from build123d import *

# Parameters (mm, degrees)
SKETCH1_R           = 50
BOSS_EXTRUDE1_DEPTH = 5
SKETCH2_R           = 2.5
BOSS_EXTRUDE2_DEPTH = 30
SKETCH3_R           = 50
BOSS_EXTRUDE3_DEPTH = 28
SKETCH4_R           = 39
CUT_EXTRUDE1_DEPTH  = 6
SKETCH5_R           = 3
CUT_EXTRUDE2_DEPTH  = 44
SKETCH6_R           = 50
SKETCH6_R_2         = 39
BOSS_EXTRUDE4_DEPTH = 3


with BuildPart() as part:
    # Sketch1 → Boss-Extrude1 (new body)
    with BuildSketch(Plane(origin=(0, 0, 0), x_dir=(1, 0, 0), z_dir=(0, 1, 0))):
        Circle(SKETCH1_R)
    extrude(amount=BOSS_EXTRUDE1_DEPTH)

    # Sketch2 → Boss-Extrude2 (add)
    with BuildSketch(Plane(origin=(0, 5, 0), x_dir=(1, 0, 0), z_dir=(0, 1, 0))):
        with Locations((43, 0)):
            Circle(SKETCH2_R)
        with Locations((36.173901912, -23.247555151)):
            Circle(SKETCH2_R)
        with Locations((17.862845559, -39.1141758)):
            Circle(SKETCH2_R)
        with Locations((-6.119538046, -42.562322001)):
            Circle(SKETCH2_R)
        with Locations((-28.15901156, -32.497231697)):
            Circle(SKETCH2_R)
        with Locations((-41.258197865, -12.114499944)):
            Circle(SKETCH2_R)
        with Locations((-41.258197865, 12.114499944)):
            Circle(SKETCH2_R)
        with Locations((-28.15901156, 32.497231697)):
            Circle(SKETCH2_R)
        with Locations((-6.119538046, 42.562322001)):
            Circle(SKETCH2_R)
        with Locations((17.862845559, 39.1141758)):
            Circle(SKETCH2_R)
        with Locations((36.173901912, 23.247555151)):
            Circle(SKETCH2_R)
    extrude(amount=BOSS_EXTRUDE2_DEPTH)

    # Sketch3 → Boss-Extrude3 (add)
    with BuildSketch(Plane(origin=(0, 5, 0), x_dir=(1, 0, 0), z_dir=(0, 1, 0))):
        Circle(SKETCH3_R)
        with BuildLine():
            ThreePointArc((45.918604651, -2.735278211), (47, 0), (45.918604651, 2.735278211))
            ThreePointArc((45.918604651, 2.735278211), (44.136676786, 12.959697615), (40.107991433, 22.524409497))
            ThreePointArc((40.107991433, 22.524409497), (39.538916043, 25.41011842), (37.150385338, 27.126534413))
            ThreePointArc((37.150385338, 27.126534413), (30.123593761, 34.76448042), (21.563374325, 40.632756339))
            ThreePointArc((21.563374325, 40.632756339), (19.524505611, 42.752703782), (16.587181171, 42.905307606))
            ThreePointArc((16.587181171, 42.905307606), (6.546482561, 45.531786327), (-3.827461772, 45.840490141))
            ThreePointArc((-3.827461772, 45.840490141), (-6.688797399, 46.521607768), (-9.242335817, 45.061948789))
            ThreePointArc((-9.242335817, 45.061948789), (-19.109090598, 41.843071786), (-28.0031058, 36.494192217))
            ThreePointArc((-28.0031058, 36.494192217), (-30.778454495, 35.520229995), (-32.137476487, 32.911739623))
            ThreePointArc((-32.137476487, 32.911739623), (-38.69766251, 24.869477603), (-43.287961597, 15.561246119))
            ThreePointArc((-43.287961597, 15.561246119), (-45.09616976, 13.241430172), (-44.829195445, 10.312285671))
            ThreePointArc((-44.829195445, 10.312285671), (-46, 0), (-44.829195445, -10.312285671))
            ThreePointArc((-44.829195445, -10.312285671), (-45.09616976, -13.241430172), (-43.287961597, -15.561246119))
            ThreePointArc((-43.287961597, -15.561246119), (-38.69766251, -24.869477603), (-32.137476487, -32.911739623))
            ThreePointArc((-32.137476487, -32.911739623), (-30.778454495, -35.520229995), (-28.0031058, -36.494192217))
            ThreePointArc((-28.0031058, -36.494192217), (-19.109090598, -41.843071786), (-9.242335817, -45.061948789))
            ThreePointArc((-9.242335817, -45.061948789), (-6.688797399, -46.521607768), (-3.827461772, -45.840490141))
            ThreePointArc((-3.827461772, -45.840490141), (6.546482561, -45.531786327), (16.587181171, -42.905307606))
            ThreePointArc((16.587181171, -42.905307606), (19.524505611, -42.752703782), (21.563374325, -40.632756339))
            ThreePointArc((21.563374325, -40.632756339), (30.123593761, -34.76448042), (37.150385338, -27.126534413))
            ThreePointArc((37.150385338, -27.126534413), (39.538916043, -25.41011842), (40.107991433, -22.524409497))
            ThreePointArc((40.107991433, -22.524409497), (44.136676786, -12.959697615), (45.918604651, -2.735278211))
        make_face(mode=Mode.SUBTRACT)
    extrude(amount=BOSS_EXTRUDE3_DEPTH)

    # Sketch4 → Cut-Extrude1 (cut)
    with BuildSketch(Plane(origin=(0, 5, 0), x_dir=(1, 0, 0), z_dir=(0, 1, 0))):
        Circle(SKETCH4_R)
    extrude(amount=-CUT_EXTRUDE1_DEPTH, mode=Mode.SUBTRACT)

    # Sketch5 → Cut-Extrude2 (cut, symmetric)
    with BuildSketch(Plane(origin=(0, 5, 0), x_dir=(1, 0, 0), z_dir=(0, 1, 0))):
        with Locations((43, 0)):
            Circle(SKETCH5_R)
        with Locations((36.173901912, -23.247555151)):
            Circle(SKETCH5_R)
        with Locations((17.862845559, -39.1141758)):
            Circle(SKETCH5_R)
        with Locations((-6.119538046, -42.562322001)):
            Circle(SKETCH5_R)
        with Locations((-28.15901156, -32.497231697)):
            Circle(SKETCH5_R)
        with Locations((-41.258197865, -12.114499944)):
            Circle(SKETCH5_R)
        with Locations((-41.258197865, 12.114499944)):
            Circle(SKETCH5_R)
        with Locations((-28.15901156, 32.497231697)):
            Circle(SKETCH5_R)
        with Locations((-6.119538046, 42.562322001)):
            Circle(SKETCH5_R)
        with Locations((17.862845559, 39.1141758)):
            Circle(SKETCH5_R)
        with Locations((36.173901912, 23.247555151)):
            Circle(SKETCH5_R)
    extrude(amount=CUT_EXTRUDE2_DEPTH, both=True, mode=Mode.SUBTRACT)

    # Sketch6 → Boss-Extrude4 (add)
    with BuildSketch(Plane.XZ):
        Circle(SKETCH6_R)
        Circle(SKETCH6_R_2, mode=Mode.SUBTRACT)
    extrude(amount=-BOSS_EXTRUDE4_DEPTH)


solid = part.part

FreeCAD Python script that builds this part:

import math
import FreeCAD as App
import Part
import Sketcher

doc = App.newDocument("Part")
body = doc.addObject("PartDesign::Body", "Body")

# Sketch on XZ plane
sketch1 = doc.addObject("Sketcher::SketchObject", "Sketch")
body.addObject(sketch1)
sketch1.AttachmentSupport = (doc.XZ_Plane, [""])
sketch1.MapMode = "FlatFace"
sketch1.addGeometry(Part.Circle(App.Vector(0, 0, 0), App.Vector(0, 0, 1), 50), False)
sketch1.addConstraint(Sketcher.Constraint("Coincident", 0, 3, -1, 1))
sketch1.addConstraint(Sketcher.Constraint("Diameter", 0, 100.0))
pad1 = doc.addObject("PartDesign::Pad", "Pad")
body.addObject(pad1)
pad1.Profile = sketch1
pad1.Length = 5
pad1.Reversed = True

# Sketch on XZ plane
sketch2 = doc.addObject("Sketcher::SketchObject", "Sketch001")
body.addObject(sketch2)
sketch2.AttachmentSupport = (doc.XZ_Plane, [""])
sketch2.MapMode = "FlatFace"
sketch2.AttachmentOffset = App.Placement(App.Vector(0, 0, -5), App.Rotation())
sketch2.addGeometry(Part.Circle(App.Vector(43, 0, 0), App.Vector(0, 0, 1), 2.5), False)
sketch2.addGeometry(Part.Circle(App.Vector(36.2, 23.2, 0), App.Vector(0, 0, 1), 2.5), False)
sketch2.addGeometry(Part.Circle(App.Vector(17.9, 39.1, 0), App.Vector(0, 0, 1), 2.5), False)
sketch2.addGeometry(Part.Circle(App.Vector(-6.1, 42.6, 0), App.Vector(0, 0, 1), 2.5), False)
sketch2.addGeometry(Part.Circle(App.Vector(-28.2, 32.5, 0), App.Vector(0, 0, 1), 2.5), False)
sketch2.addGeometry(Part.Circle(App.Vector(-41.3, 12.1, 0), App.Vector(0, 0, 1), 2.5), False)
sketch2.addGeometry(Part.Circle(App.Vector(-41.3, -12.1, 0), App.Vector(0, 0, 1), 2.5), False)
sketch2.addGeometry(Part.Circle(App.Vector(-28.2, -32.5, 0), App.Vector(0, 0, 1), 2.5), False)
sketch2.addGeometry(Part.Circle(App.Vector(-6.1, -42.6, 0), App.Vector(0, 0, 1), 2.5), False)
sketch2.addGeometry(Part.Circle(App.Vector(17.9, -39.1, 0), App.Vector(0, 0, 1), 2.5), False)
sketch2.addGeometry(Part.Circle(App.Vector(36.2, -23.2, 0), App.Vector(0, 0, 1), 2.5), False)
sketch2.addConstraint(Sketcher.Constraint("Equal", 0, 1))
sketch2.addConstraint(Sketcher.Constraint("Equal", 1, 2))
sketch2.addConstraint(Sketcher.Constraint("Equal", 2, 3))
sketch2.addConstraint(Sketcher.Constraint("Equal", 3, 4))
sketch2.addConstraint(Sketcher.Constraint("Equal", 4, 5))
sketch2.addConstraint(Sketcher.Constraint("Equal", 5, 6))
sketch2.addConstraint(Sketcher.Constraint("Equal", 6, 7))
sketch2.addConstraint(Sketcher.Constraint("Equal", 7, 8))
sketch2.addConstraint(Sketcher.Constraint("Equal", 8, 9))
sketch2.addConstraint(Sketcher.Constraint("Equal", 9, 10))
sketch2.addConstraint(Sketcher.Constraint("Symmetric", 5, 3, 6, 3, -1))
sketch2.addConstraint(Sketcher.Constraint("Symmetric", 4, 3, 7, 3, -1))
sketch2.addConstraint(Sketcher.Constraint("Symmetric", 3, 3, 8, 3, -1))
sketch2.addConstraint(Sketcher.Constraint("Symmetric", 2, 3, 9, 3, -1))
sketch2.addConstraint(Sketcher.Constraint("Symmetric", 1, 3, 10, 3, -1))
sketch2.addConstraint(Sketcher.Constraint("PointOnObject", 0, 3, -1))
sketch2.addConstraint(Sketcher.Constraint("Diameter", 0, 5.0))
sketch2.addConstraint(Sketcher.Constraint("DistanceX", -1, 1, 0, 3, 43.0))
sketch2.addConstraint(Sketcher.Constraint("DistanceY", 6, 3, 5, 3, 24.229))
sketch2.addConstraint(Sketcher.Constraint("DistanceX", -1, 1, 1, 3, 36.173902))
sketch2.addConstraint(Sketcher.Constraint("DistanceX", 5, 3, 1, 3, 77.4321))
sketch2.addConstraint(Sketcher.Constraint("DistanceX", 3, 3, -1, 1, 6.119538))
sketch2.addConstraint(Sketcher.Constraint("DistanceX", 4, 3, -1, 1, 28.159012))
sketch2.addConstraint(Sketcher.Constraint("DistanceY", -1, 1, 4, 3, 32.497232))
sketch2.addConstraint(Sketcher.Constraint("DistanceY", 1, 3, 2, 3, 15.866621))
sketch2.addConstraint(Sketcher.Constraint("DistanceY", 4, 3, 3, 3, 10.06509))
sketch2.addConstraint(Sketcher.Constraint("DistanceY", 9, 3, 1, 3, 62.361731))
sketch2.addConstraint(Sketcher.Constraint("DistanceX", -1, 1, 2, 3, 17.862846))
pad2 = doc.addObject("PartDesign::Pad", "Pad001")
body.addObject(pad2)
pad2.Profile = sketch2
pad2.Length = 30
pad2.Reversed = True

# Sketch on XZ plane
sketch3 = doc.addObject("Sketcher::SketchObject", "Sketch002")
body.addObject(sketch3)
sketch3.AttachmentSupport = (doc.XZ_Plane, [""])
sketch3.MapMode = "FlatFace"
sketch3.AttachmentOffset = App.Placement(App.Vector(0, 0, -5), App.Rotation())
sketch3.addGeometry(Part.Circle(App.Vector(0, 0, 0), App.Vector(0, 0, 1), 50), False)
sketch3.addGeometry(Part.ArcOfCircle(Part.Circle(App.Vector(43, 0, 0), App.Vector(0, 0, 1), 4), math.radians(-43), math.radians(43)), False)
sketch3.addGeometry(Part.ArcOfCircle(Part.Circle(App.Vector(0, 0, 0), App.Vector(0, 0, 1), 46), math.radians(3), math.radians(29)), False)
sketch3.addGeometry(Part.ArcOfCircle(Part.Circle(App.Vector(36.2, 23.2, 0), App.Vector(0, 0, 1), 4), math.radians(-10), math.radians(76)), False)
sketch3.addGeometry(Part.ArcOfCircle(Part.Circle(App.Vector(0, 0, 0), App.Vector(0, 0, 1), 46), math.radians(36), math.radians(62)), False)
sketch3.addGeometry(Part.ArcOfCircle(Part.Circle(App.Vector(17.9, 39.1, 0), App.Vector(0, 0, 1), 4), math.radians(22), math.radians(109)), False)
sketch3.addGeometry(Part.ArcOfCircle(Part.Circle(App.Vector(0, 0, 0), App.Vector(0, 0, 1), 46), math.radians(69), math.radians(95)), False)
sketch3.addGeometry(Part.ArcOfCircle(Part.Circle(App.Vector(-6.1, 42.6, 0), App.Vector(0, 0, 1), 4), math.radians(55), math.radians(141)), False)
sketch3.addGeometry(Part.ArcOfCircle(Part.Circle(App.Vector(0, 0, 0), App.Vector(0, 0, 1), 46), math.radians(102), math.radians(128)), False)
sketch3.addGeometry(Part.ArcOfCircle(Part.Circle(App.Vector(-28.2, 32.5, 0), App.Vector(0, 0, 1), 4), math.radians(88), math.radians(174)), False)
sketch3.addGeometry(Part.ArcOfCircle(Part.Circle(App.Vector(0, 0, 0), App.Vector(0, 0, 1), 46), math.radians(134), math.radians(160)), False)
sketch3.addGeometry(Part.ArcOfCircle(Part.Circle(App.Vector(-41.3, 12.1, 0), App.Vector(0, 0, 1), 4), math.radians(120), math.radians(207)), False)
sketch3.addGeometry(Part.ArcOfCircle(Part.Circle(App.Vector(0, 0, 0), App.Vector(0, 0, 1), 46), math.radians(167), math.radians(193)), False)
sketch3.addGeometry(Part.ArcOfCircle(Part.Circle(App.Vector(-41.3, -12.1, 0), App.Vector(0, 0, 1), 4), math.radians(153), math.radians(240)), False)
sketch3.addGeometry(Part.ArcOfCircle(Part.Circle(App.Vector(0, 0, 0), App.Vector(0, 0, 1), 46), math.radians(-160), math.radians(-134)), False)
sketch3.addGeometry(Part.ArcOfCircle(Part.Circle(App.Vector(-28.2, -32.5, 0), App.Vector(0, 0, 1), 4), math.radians(-174), math.radians(-88)), False)
sketch3.addGeometry(Part.ArcOfCircle(Part.Circle(App.Vector(0, 0, 0), App.Vector(0, 0, 1), 46), math.radians(-128), math.radians(-102)), False)
sketch3.addGeometry(Part.ArcOfCircle(Part.Circle(App.Vector(-6.1, -42.6, 0), App.Vector(0, 0, 1), 4), math.radians(-141), math.radians(-55)), False)
sketch3.addGeometry(Part.ArcOfCircle(Part.Circle(App.Vector(0, 0, 0), App.Vector(0, 0, 1), 46), math.radians(-95), math.radians(-69)), False)
sketch3.addGeometry(Part.ArcOfCircle(Part.Circle(App.Vector(17.9, -39.1, 0), App.Vector(0, 0, 1), 4), math.radians(-109), math.radians(-22)), False)
sketch3.addGeometry(Part.ArcOfCircle(Part.Circle(App.Vector(0, 0, 0), App.Vector(0, 0, 1), 46), math.radians(-62), math.radians(-36)), False)
sketch3.addGeometry(Part.ArcOfCircle(Part.Circle(App.Vector(36.2, -23.2, 0), App.Vector(0, 0, 1), 4), math.radians(-76), math.radians(10)), False)
sketch3.addGeometry(Part.ArcOfCircle(Part.Circle(App.Vector(0, 0, 0), App.Vector(0, 0, 1), 46), math.radians(-29), math.radians(-3)), False)
sketch3.addConstraint(Sketcher.Constraint("Coincident", 1, 2, 2, 1))
sketch3.addConstraint(Sketcher.Constraint("Coincident", 2, 2, 3, 1))
sketch3.addConstraint(Sketcher.Constraint("Coincident", 3, 2, 4, 1))
sketch3.addConstraint(Sketcher.Constraint("Coincident", 4, 2, 5, 1))
sketch3.addConstraint(Sketcher.Constraint("Coincident", 5, 2, 6, 1))
sketch3.addConstraint(Sketcher.Constraint("Coincident", 6, 2, 7, 1))
sketch3.addConstraint(Sketcher.Constraint("Coincident", 7, 2, 8, 1))
sketch3.addConstraint(Sketcher.Constraint("Coincident", 8, 2, 9, 1))
sketch3.addConstraint(Sketcher.Constraint("Coincident", 9, 2, 10, 1))
sketch3.addConstraint(Sketcher.Constraint("Coincident", 10, 2, 11, 1))
sketch3.addConstraint(Sketcher.Constraint("Coincident", 11, 2, 12, 1))
sketch3.addConstraint(Sketcher.Constraint("Coincident", 12, 2, 13, 1))
sketch3.addConstraint(Sketcher.Constraint("Coincident", 13, 2, 14, 1))
sketch3.addConstraint(Sketcher.Constraint("Coincident", 14, 2, 15, 1))
sketch3.addConstraint(Sketcher.Constraint("Coincident", 15, 2, 16, 1))
sketch3.addConstraint(Sketcher.Constraint("Coincident", 16, 2, 17, 1))
sketch3.addConstraint(Sketcher.Constraint("Coincident", 17, 2, 18, 1))
sketch3.addConstraint(Sketcher.Constraint("Coincident", 18, 2, 19, 1))
sketch3.addConstraint(Sketcher.Constraint("Coincident", 19, 2, 20, 1))
sketch3.addConstraint(Sketcher.Constraint("Coincident", 20, 2, 21, 1))
sketch3.addConstraint(Sketcher.Constraint("Coincident", 21, 2, 22, 1))
sketch3.addConstraint(Sketcher.Constraint("Coincident", 22, 2, 1, 1))
sketch3.addConstraint(Sketcher.Constraint("Coincident", 0, 3, -1, 1))
sketch3.addConstraint(Sketcher.Constraint("Coincident", 2, 3, -1, 1))
sketch3.addConstraint(Sketcher.Constraint("Coincident", 4, 3, -1, 1))
sketch3.addConstraint(Sketcher.Constraint("Coincident", 6, 3, -1, 1))
sketch3.addConstraint(Sketcher.Constraint("Coincident", 8, 3, -1, 1))
sketch3.addConstraint(Sketcher.Constraint("Coincident", 10, 3, -1, 1))
sketch3.addConstraint(Sketcher.Constraint("Coincident", 12, 3, -1, 1))
sketch3.addConstraint(Sketcher.Constraint("Coincident", 14, 3, -1, 1))
sketch3.addConstraint(Sketcher.Constraint("Coincident", 16, 3, -1, 1))
sketch3.addConstraint(Sketcher.Constraint("Coincident", 18, 3, -1, 1))
sketch3.addConstraint(Sketcher.Constraint("Coincident", 20, 3, -1, 1))
sketch3.addConstraint(Sketcher.Constraint("Coincident", 22, 3, -1, 1))
sketch3.addConstraint(Sketcher.Constraint("Equal", 1, 3))
sketch3.addConstraint(Sketcher.Constraint("Equal", 2, 4))
sketch3.addConstraint(Sketcher.Constraint("Equal", 3, 5))
sketch3.addConstraint(Sketcher.Constraint("Equal", 4, 6))
sketch3.addConstraint(Sketcher.Constraint("Equal", 5, 7))
sketch3.addConstraint(Sketcher.Constraint("Equal", 6, 8))
sketch3.addConstraint(Sketcher.Constraint("Equal", 7, 9))
sketch3.addConstraint(Sketcher.Constraint("Equal", 8, 10))
sketch3.addConstraint(Sketcher.Constraint("Equal", 9, 11))
sketch3.addConstraint(Sketcher.Constraint("Equal", 10, 12))
sketch3.addConstraint(Sketcher.Constraint("Equal", 11, 13))
sketch3.addConstraint(Sketcher.Constraint("Equal", 12, 14))
sketch3.addConstraint(Sketcher.Constraint("Equal", 13, 15))
sketch3.addConstraint(Sketcher.Constraint("Equal", 14, 16))
sketch3.addConstraint(Sketcher.Constraint("Equal", 15, 17))
sketch3.addConstraint(Sketcher.Constraint("Equal", 16, 18))
sketch3.addConstraint(Sketcher.Constraint("Equal", 17, 19))
sketch3.addConstraint(Sketcher.Constraint("Equal", 18, 20))
sketch3.addConstraint(Sketcher.Constraint("Equal", 19, 21))
sketch3.addConstraint(Sketcher.Constraint("Equal", 20, 22))
sketch3.addConstraint(Sketcher.Constraint("Symmetric", 11, 3, 13, 3, -1))
sketch3.addConstraint(Sketcher.Constraint("Symmetric", 9, 3, 15, 3, -1))
sketch3.addConstraint(Sketcher.Constraint("Symmetric", 7, 3, 17, 3, -1))
sketch3.addConstraint(Sketcher.Constraint("Symmetric", 5, 3, 19, 3, -1))
sketch3.addConstraint(Sketcher.Constraint("Symmetric", 3, 3, 21, 3, -1))
sketch3.addConstraint(Sketcher.Constraint("PointOnObject", 1, 3, -1))
sketch3.addConstraint(Sketcher.Constraint("Diameter", 0, 100.0))
sketch3.addConstraint(Sketcher.Constraint("Radius", 1, 4.0))
sketch3.addConstraint(Sketcher.Constraint("Radius", 2, 46.0))
sketch3.addConstraint(Sketcher.Constraint("DistanceX", -1, 1, 1, 3, 43.0))
sketch3.addConstraint(Sketcher.Constraint("DistanceY", 13, 3, 11, 3, 24.229))
sketch3.addConstraint(Sketcher.Constraint("DistanceX", -1, 1, 3, 3, 36.173902))
sketch3.addConstraint(Sketcher.Constraint("DistanceY", 3, 3, 4, 2, 17.385201))
sketch3.addConstraint(Sketcher.Constraint("DistanceX", 7, 3, -1, 1, 6.119538))
sketch3.addConstraint(Sketcher.Constraint("DistanceX", 9, 3, -1, 1, 28.159012))
sketch3.addConstraint(Sketcher.Constraint("DistanceY", -1, 1, 9, 3, 32.497232))
sketch3.addConstraint(Sketcher.Constraint("DistanceX", -1, 1, 2, 2, 40.107991))
sketch3.addConstraint(Sketcher.Constraint("DistanceX", -1, 1, 5, 2, 16.587181))
sketch3.addConstraint(Sketcher.Constraint("DistanceX", 6, 2, -1, 1, 3.827462))
sketch3.addConstraint(Sketcher.Constraint("DistanceX", 10, 2, -1, 1, 43.287962))
pad3 = doc.addObject("PartDesign::Pad", "Pad002")
body.addObject(pad3)
pad3.Profile = sketch3
pad3.Length = 28
pad3.Reversed = True

# Sketch on XZ plane
sketch4 = doc.addObject("Sketcher::SketchObject", "Sketch003")
body.addObject(sketch4)
sketch4.AttachmentSupport = (doc.XZ_Plane, [""])
sketch4.MapMode = "FlatFace"
sketch4.AttachmentOffset = App.Placement(App.Vector(0, 0, -5), App.Rotation())
sketch4.addGeometry(Part.Circle(App.Vector(0, 0, 0), App.Vector(0, 0, 1), 39), False)
sketch4.addConstraint(Sketcher.Constraint("Coincident", 0, 3, -1, 1))
sketch4.addConstraint(Sketcher.Constraint("Diameter", 0, 78.0))
pocket1 = doc.addObject("PartDesign::Pocket", "Pocket")
body.addObject(pocket1)
pocket1.Profile = sketch4
pocket1.Length = 6
pocket1.Reversed = True

# Sketch on XZ plane
sketch5 = doc.addObject("Sketcher::SketchObject", "Sketch004")
body.addObject(sketch5)
sketch5.AttachmentSupport = (doc.XZ_Plane, [""])
sketch5.MapMode = "FlatFace"
sketch5.AttachmentOffset = App.Placement(App.Vector(0, 0, -5), App.Rotation())
sketch5.addGeometry(Part.Circle(App.Vector(43, 0, 0), App.Vector(0, 0, 1), 3), False)
sketch5.addGeometry(Part.Circle(App.Vector(36.2, 23.2, 0), App.Vector(0, 0, 1), 3), False)
sketch5.addGeometry(Part.Circle(App.Vector(17.9, 39.1, 0), App.Vector(0, 0, 1), 3), False)
sketch5.addGeometry(Part.Circle(App.Vector(-6.1, 42.6, 0), App.Vector(0, 0, 1), 3), False)
sketch5.addGeometry(Part.Circle(App.Vector(-28.2, 32.5, 0), App.Vector(0, 0, 1), 3), False)
sketch5.addGeometry(Part.Circle(App.Vector(-41.3, 12.1, 0), App.Vector(0, 0, 1), 3), False)
sketch5.addGeometry(Part.Circle(App.Vector(-41.3, -12.1, 0), App.Vector(0, 0, 1), 3), False)
sketch5.addGeometry(Part.Circle(App.Vector(-28.2, -32.5, 0), App.Vector(0, 0, 1), 3), False)
sketch5.addGeometry(Part.Circle(App.Vector(-6.1, -42.6, 0), App.Vector(0, 0, 1), 3), False)
sketch5.addGeometry(Part.Circle(App.Vector(17.9, -39.1, 0), App.Vector(0, 0, 1), 3), False)
sketch5.addGeometry(Part.Circle(App.Vector(36.2, -23.2, 0), App.Vector(0, 0, 1), 3), False)
sketch5.addConstraint(Sketcher.Constraint("Equal", 0, 1))
sketch5.addConstraint(Sketcher.Constraint("Equal", 1, 2))
sketch5.addConstraint(Sketcher.Constraint("Equal", 2, 3))
sketch5.addConstraint(Sketcher.Constraint("Equal", 3, 4))
sketch5.addConstraint(Sketcher.Constraint("Equal", 4, 5))
sketch5.addConstraint(Sketcher.Constraint("Equal", 5, 6))
sketch5.addConstraint(Sketcher.Constraint("Equal", 6, 7))
sketch5.addConstraint(Sketcher.Constraint("Equal", 7, 8))
sketch5.addConstraint(Sketcher.Constraint("Equal", 8, 9))
sketch5.addConstraint(Sketcher.Constraint("Equal", 9, 10))
sketch5.addConstraint(Sketcher.Constraint("Symmetric", 5, 3, 6, 3, -1))
sketch5.addConstraint(Sketcher.Constraint("Symmetric", 4, 3, 7, 3, -1))
sketch5.addConstraint(Sketcher.Constraint("Symmetric", 3, 3, 8, 3, -1))
sketch5.addConstraint(Sketcher.Constraint("Symmetric", 2, 3, 9, 3, -1))
sketch5.addConstraint(Sketcher.Constraint("Symmetric", 1, 3, 10, 3, -1))
sketch5.addConstraint(Sketcher.Constraint("PointOnObject", 0, 3, -1))
sketch5.addConstraint(Sketcher.Constraint("Diameter", 0, 6.0))
sketch5.addConstraint(Sketcher.Constraint("DistanceX", -1, 1, 0, 3, 43.0))
sketch5.addConstraint(Sketcher.Constraint("DistanceY", 6, 3, 5, 3, 24.229))
sketch5.addConstraint(Sketcher.Constraint("DistanceX", -1, 1, 1, 3, 36.173902))
sketch5.addConstraint(Sketcher.Constraint("DistanceX", 5, 3, 1, 3, 77.4321))
sketch5.addConstraint(Sketcher.Constraint("DistanceX", 3, 3, -1, 1, 6.119538))
sketch5.addConstraint(Sketcher.Constraint("DistanceX", 4, 3, -1, 1, 28.159012))
sketch5.addConstraint(Sketcher.Constraint("DistanceY", -1, 1, 4, 3, 32.497232))
sketch5.addConstraint(Sketcher.Constraint("DistanceY", 1, 3, 2, 3, 15.866621))
sketch5.addConstraint(Sketcher.Constraint("DistanceY", 4, 3, 3, 3, 10.06509))
sketch5.addConstraint(Sketcher.Constraint("DistanceY", 9, 3, 1, 3, 62.361731))
sketch5.addConstraint(Sketcher.Constraint("DistanceX", -1, 1, 2, 3, 17.862846))
pocket2 = doc.addObject("PartDesign::Pocket", "Pocket001")
body.addObject(pocket2)
pocket2.Profile = sketch5
pocket2.Length = 88
pocket2.Midplane = True

# Sketch on XZ plane
sketch6 = doc.addObject("Sketcher::SketchObject", "Sketch005")
body.addObject(sketch6)
sketch6.AttachmentSupport = (doc.XZ_Plane, [""])
sketch6.MapMode = "FlatFace"
sketch6.addGeometry(Part.Circle(App.Vector(0, 0, 0), App.Vector(0, 0, 1), 50), False)
sketch6.addGeometry(Part.Circle(App.Vector(0, 0, 0), App.Vector(0, 0, 1), 39), False)
sketch6.addConstraint(Sketcher.Constraint("Coincident", 0, 3, -1, 1))
sketch6.addConstraint(Sketcher.Constraint("Coincident", 1, 3, -1, 1))
sketch6.addConstraint(Sketcher.Constraint("Diameter", 0, 100.0))
sketch6.addConstraint(Sketcher.Constraint("Diameter", 1, 78.0))
pad4 = doc.addObject("PartDesign::Pad", "Pad003")
body.addObject(pad4)
pad4.Profile = sketch6
pad4.Length = 3
pad4.Reversed = True

doc.recompute()
